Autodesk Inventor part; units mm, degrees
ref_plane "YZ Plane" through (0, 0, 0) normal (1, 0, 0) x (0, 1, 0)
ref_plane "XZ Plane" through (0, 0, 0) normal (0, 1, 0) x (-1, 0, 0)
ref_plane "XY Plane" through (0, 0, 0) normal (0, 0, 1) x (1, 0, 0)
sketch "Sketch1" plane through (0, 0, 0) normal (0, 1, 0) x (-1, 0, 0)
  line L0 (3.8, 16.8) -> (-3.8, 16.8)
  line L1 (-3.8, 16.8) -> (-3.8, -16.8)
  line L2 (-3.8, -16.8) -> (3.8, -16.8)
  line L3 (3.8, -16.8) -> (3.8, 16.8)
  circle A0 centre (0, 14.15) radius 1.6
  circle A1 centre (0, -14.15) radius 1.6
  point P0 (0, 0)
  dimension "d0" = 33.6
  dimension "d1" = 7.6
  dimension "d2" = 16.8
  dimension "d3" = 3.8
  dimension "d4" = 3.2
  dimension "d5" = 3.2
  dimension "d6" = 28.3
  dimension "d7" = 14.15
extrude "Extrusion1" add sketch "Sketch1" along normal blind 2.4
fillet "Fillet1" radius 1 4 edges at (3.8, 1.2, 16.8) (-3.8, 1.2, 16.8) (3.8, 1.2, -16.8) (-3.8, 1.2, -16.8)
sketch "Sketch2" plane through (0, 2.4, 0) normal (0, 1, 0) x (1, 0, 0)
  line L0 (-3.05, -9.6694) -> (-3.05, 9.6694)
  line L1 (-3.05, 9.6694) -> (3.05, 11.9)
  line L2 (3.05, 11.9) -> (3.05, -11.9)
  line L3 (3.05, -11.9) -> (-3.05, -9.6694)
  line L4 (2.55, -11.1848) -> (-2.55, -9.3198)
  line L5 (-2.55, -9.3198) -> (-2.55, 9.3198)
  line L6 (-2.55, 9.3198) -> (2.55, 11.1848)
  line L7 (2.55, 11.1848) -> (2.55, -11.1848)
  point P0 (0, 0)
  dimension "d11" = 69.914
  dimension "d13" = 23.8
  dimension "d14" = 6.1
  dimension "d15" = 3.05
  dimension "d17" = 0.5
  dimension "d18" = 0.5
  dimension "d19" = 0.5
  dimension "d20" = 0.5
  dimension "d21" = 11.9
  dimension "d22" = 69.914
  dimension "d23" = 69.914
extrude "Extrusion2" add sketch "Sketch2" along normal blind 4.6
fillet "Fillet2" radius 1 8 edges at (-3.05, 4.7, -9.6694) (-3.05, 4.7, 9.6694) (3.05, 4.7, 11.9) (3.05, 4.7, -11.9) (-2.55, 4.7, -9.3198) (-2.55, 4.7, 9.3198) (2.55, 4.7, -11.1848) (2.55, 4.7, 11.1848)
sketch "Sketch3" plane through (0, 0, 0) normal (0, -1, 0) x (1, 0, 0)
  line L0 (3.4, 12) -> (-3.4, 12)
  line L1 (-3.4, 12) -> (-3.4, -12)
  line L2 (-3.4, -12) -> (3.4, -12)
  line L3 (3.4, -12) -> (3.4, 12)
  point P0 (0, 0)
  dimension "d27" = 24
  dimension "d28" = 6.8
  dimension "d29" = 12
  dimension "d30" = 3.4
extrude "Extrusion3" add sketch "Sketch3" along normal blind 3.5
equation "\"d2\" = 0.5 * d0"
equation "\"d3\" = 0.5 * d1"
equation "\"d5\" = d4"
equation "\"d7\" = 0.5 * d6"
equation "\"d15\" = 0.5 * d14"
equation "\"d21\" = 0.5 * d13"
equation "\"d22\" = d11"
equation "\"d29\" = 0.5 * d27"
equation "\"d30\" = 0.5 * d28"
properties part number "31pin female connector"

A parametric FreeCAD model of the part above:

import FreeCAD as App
import Part
import Sketcher
from FreeCAD import Vector


def edges_at(feature, points):
    """Names of the edges that pass closest to the given points."""
    edges = feature.Shape.Edges
    near = lambda p: min(range(len(edges)), key=lambda i: edges[i].distToShape(Part.Vertex(*p))[0])
    return sorted({f"Edge{near(p) + 1}" for p in points})


def add_polygon(sketch, points):
    """Adds a closed chain of lines whose ends are joined by coincident constraints."""
    first, n = sketch.GeometryCount, len(points)
    for a, b in zip(points, points[1:] + points[:1]):
        sketch.addGeometry(Part.LineSegment(App.Vector(*a, 0), App.Vector(*b, 0)), False)
    for i in range(n):
        sketch.addConstraint(Sketcher.Constraint("Coincident", first + i, 2, first + (i + 1) % n, 1))

doc = App.newDocument("Part")
body = doc.addObject("PartDesign::Body", "Body")

# Sketch on XZ plane
sketch1 = doc.addObject("Sketcher::SketchObject", "Sketch")
body.addObject(sketch1)
sketch1.AttachmentSupport = (doc.XZ_Plane, [""])
sketch1.MapMode = "FlatFace"
add_polygon(sketch1, [(-3.8, -16.8), (-3.8, 16.8), (3.8, 16.8), (3.8, -16.8)])  # lines 0-3
sketch1.addGeometry(Part.Circle(Vector(0, -14.2, 0), Vector(0, 0, 1), 1.6), False)  # 4
sketch1.addGeometry(Part.Circle(Vector(0, 14.2, 0), Vector(0, 0, 1), 1.6), False)  # 5
sketch1.addConstraint([
    Sketcher.Constraint("Vertical", 0),
    Sketcher.Constraint("Horizontal", 1),
    Sketcher.Constraint("Vertical", 2),
    Sketcher.Constraint("Horizontal", 3),
    Sketcher.Constraint("Equal", 4, 5),
    Sketcher.Constraint("Symmetric", 4, 3, 5, 3, -1, 1),
    Sketcher.Constraint("Symmetric", 0, 2, 2, 2, -1, 1),
    Sketcher.Constraint("PointOnObject", 4, 3, -2),
    Sketcher.Constraint("Diameter", 4, 3.2),
    Sketcher.Constraint("DistanceX", 1, 1, 1, 2, 7.6),
    Sketcher.Constraint("DistanceY", 0, 1, 0, 2, 33.6),
    Sketcher.Constraint("DistanceY", 4, 3, 5, 3, 28.3),
])
pad1 = doc.addObject("PartDesign::Pad", "Pad")
body.addObject(pad1)
pad1.Profile = sketch1
pad1.Length = 2.4
pad1.Reversed = True
doc.recompute()

fillet = doc.addObject("PartDesign::Fillet", "Fillet")
body.addObject(fillet)
fillet.Base = (pad1, edges_at(pad1, [
    (3.8, 1.2, 16.8),
    (-3.8, 1.2, 16.8),
    (3.8, 1.2, -16.8),
    (-3.8, 1.2, -16.8),
]))
fillet.Radius = 1

# Sketch on XZ plane
sketch2 = doc.addObject("Sketcher::SketchObject", "Sketch001")
body.addObject(sketch2)
sketch2.AttachmentSupport = (doc.XZ_Plane, [""])
sketch2.MapMode = "FlatFace"
sketch2.AttachmentOffset = App.Placement(Vector(0, 0, -2.4), App.Rotation())
add_polygon(sketch2, [(-3, -10), (-3, 10), (3, 12), (3, -12)])  # lines 0-3
add_polygon(sketch2, [(3, -11), (3, 11), (-3, 9), (-3, -9)])  # lines 4-7
sketch2.addConstraint([
    Sketcher.Constraint("Vertical", 0),
    Sketcher.Constraint("Vertical", 2),
    Sketcher.Constraint("Vertical", 4),
    Sketcher.Constraint("Vertical", 6),
    Sketcher.Constraint("Parallel", 1, 5),
    Sketcher.Constraint("Parallel", 3, 7),
    Sketcher.Constraint("Equal", 1, 3),
    Sketcher.Constraint("DistanceY", 2, 2, 2, 1, 23.8),
    Sketcher.Constraint("DistanceY", -1, 1, 1, 2, 11.9),
    Sketcher.Constraint("DistanceX", 0, 2, 1, 2, 6.1),
    Sketcher.Constraint("DistanceX", 4, 2, 1, 2, 0.5),
    Sketcher.Constraint("DistanceX", 0, 2, 5, 2, 0.5),
    Sketcher.Constraint("DistanceX", 0, 2, -1, 1, 3.05),
    Sketcher.Constraint("Distance", 1, 6.495),
    Sketcher.Constraint("DistanceY", 4, 1, 4, 2, 22.3696),
    Sketcher.Constraint("DistanceY", -1, 1, 4, 2, 11.1848),
])
pad2 = doc.addObject("PartDesign::Pad", "Pad001")
body.addObject(pad2)
pad2.Profile = sketch2
pad2.Length = 4.6
pad2.Reversed = True
doc.recompute()

fillet2 = doc.addObject("PartDesign::Fillet", "Fillet001")
body.addObject(fillet2)
fillet2.Base = (pad2, edges_at(pad2, [
    (-3.05, 4.7, -9.669),
    (-3.05, 4.7, 9.669),
    (3.05, 4.7, 11.9),
    (3.05, 4.7, -11.9),
    (-2.55, 4.7, -9.32),
    (-2.55, 4.7, 9.32),
    (2.55, 4.7, -11.185),
    (2.55, 4.7, 11.185),
]))
fillet2.Radius = 1

# Sketch on XZ plane
sketch3 = doc.addObject("Sketcher::SketchObject", "Sketch002")
body.addObject(sketch3)
sketch3.AttachmentSupport = (doc.XZ_Plane, [""])
sketch3.MapMode = "FlatFace"
add_polygon(sketch3, [(3, -12), (3, 12), (-3, 12), (-3, -12)])  # lines 0-3
sketch3.addConstraint([
    Sketcher.Constraint("Vertical", 0),
    Sketcher.Constraint("Horizontal", 1),
    Sketcher.Constraint("Vertical", 2),
    Sketcher.Constraint("Horizontal", 3),
    Sketcher.Constraint("Symmetric", 0, 2, 2, 2, -1, 1),
    Sketcher.Constraint("DistanceY", 0, 1, 0, 2, 24.0),
    Sketcher.Constraint("DistanceX", 1, 2, 1, 1, 6.8),
])
pad3 = doc.addObject("PartDesign::Pad", "Pad002")
body.addObject(pad3)
pad3.Profile = sketch3
pad3.Length = 3.5

doc.recompute()
